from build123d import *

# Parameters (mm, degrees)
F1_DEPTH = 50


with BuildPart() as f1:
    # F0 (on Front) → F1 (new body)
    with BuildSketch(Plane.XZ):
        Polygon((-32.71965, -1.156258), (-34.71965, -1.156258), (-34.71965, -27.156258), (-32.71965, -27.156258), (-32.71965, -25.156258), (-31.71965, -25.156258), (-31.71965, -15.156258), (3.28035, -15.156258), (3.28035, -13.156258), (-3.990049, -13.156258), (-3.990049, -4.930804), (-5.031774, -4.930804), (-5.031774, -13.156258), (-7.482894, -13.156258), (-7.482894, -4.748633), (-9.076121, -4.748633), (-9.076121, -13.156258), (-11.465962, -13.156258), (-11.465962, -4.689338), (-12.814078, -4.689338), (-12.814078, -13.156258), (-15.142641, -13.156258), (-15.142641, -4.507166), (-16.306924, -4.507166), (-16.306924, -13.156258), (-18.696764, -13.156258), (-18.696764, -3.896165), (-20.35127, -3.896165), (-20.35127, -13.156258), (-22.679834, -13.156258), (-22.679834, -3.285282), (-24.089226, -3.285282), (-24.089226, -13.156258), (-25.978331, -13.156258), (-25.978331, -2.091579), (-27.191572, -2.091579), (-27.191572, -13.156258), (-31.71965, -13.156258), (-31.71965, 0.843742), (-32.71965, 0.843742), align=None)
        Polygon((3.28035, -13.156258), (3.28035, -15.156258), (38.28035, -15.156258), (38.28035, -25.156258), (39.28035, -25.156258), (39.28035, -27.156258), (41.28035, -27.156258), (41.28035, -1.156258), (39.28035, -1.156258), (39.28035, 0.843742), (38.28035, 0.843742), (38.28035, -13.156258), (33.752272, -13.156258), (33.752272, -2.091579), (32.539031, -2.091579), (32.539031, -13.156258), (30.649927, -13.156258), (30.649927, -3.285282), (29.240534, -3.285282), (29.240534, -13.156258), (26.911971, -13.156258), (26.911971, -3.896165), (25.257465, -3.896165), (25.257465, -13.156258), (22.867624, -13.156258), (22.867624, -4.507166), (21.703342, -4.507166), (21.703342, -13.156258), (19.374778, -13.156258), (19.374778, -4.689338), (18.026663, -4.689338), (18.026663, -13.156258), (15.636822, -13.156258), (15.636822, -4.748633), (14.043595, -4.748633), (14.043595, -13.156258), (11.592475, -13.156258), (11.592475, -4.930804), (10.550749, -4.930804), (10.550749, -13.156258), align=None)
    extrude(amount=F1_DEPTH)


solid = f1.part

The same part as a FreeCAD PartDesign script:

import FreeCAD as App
import Part
import Sketcher
from FreeCAD import Vector


def add_polygon(sketch, points):
    """Adds a closed chain of lines whose ends are joined by coincident constraints."""
    first, n = sketch.GeometryCount, len(points)
    for a, b in zip(points, points[1:] + points[:1]):
        sketch.addGeometry(Part.LineSegment(App.Vector(*a, 0), App.Vector(*b, 0)), False)
    for i in range(n):
        sketch.addConstraint(Sketcher.Constraint("Coincident", first + i, 2, first + (i + 1) % n, 1))

doc = App.newDocument("Part")
body = doc.addObject("PartDesign::Body", "Body")

# Sketch on XZ plane
sketch1 = body.newObject("Sketcher::SketchObject", "Sketch")
sketch1.AttachmentSupport = (doc.getObject("XZ_Plane"), [""])
sketch1.MapMode = "FlatFace"
add_polygon(sketch1, [(-32.7, -1.2), (-34.7, -1.2), (-34.7, -27.2), (-32.7, -27.2), (-32.7, -25.2), (-31.7, -25.2), (-31.7, -15.2), (38.3, -15.2), (38.3, -25.2), (39.3, -25.2), (39.3, -27.2), (41.3, -27.2), (41.3, -1.2), (39.3, -1.2), (39.3, 0.8), (38.3, 0.8), (38.3, -13.2), (33.8, -13.2), (33.8, -2.1), (32.5, -2.1), (32.5, -13.2), (30.6, -13.2), (30.6, -3.3), (29.2, -3.3), (29.2, -13.2), (26.9, -13.2), (26.9, -3.9), (25.3, -3.9), (25.3, -13.2), (22.9, -13.2), (22.9, -4.5), (21.7, -4.5), (21.7, -13.2), (19.4, -13.2), (19.4, -4.7), (18, -4.7), (18, -13.2), (15.6, -13.2), (15.6, -4.7), (14, -4.7), (14, -13.2), (11.6, -13.2), (11.6, -4.9), (10.6, -4.9), (10.6, -13.2), (-4, -13.2), (-4, -4.9), (-5, -4.9), (-5, -13.2), (-7.5, -13.2), (-7.5, -4.7), (-9.1, -4.7), (-9.1, -13.2), (-11.5, -13.2), (-11.5, -4.7), (-12.8, -4.7), (-12.8, -13.2), (-15.1, -13.2), (-15.1, -4.5), (-16.3, -4.5), (-16.3, -13.2), (-18.7, -13.2), (-18.7, -3.9), (-20.4, -3.9), (-20.4, -13.2), (-22.7, -13.2), (-22.7, -3.3), (-24.1, -3.3), (-24.1, -13.2), (-26, -13.2), (-26, -2.1), (-27.2, -2.1), (-27.2, -13.2), (-31.7, -13.2), (-31.7, 0.8), (-32.7, 0.8)])  # lines 0-75
sketch1.addConstraint(Sketcher.Constraint("Horizontal", 0))
sketch1.addConstraint(Sketcher.Constraint("Vertical", 1))
sketch1.addConstraint(Sketcher.Constraint("Horizontal", 2))
sketch1.addConstraint(Sketcher.Constraint("Vertical", 3))
sketch1.addConstraint(Sketcher.Constraint("Horizontal", 4))
sketch1.addConstraint(Sketcher.Constraint("Vertical", 5))
sketch1.addConstraint(Sketcher.Constraint("Horizontal", 6))
sketch1.addConstraint(Sketcher.Constraint("Vertical", 7))
sketch1.addConstraint(Sketcher.Constraint("Horizontal", 8))
sketch1.addConstraint(Sketcher.Constraint("Vertical", 9))
sketch1.addConstraint(Sketcher.Constraint("Horizontal", 10))
sketch1.addConstraint(Sketcher.Constraint("Vertical", 11))
sketch1.addConstraint(Sketcher.Constraint("Horizontal", 12))
sketch1.addConstraint(Sketcher.Constraint("Vertical", 13))
sketch1.addConstraint(Sketcher.Constraint("Horizontal", 14))
sketch1.addConstraint(Sketcher.Constraint("Vertical", 15))
sketch1.addConstraint(Sketcher.Constraint("Horizontal", 16))
sketch1.addConstraint(Sketcher.Constraint("Vertical", 17))
sketch1.addConstraint(Sketcher.Constraint("Horizontal", 18))
sketch1.addConstraint(Sketcher.Constraint("Vertical", 19))
sketch1.addConstraint(Sketcher.Constraint("Horizontal", 20))
sketch1.addConstraint(Sketcher.Constraint("Vertical", 21))
sketch1.addConstraint(Sketcher.Constraint("Horizontal", 22))
sketch1.addConstraint(Sketcher.Constraint("Vertical", 23))
sketch1.addConstraint(Sketcher.Constraint("Horizontal", 24))
sketch1.addConstraint(Sketcher.Constraint("Vertical", 25))
sketch1.addConstraint(Sketcher.Constraint("Horizontal", 26))
sketch1.addConstraint(Sketcher.Constraint("Vertical", 27))
sketch1.addConstraint(Sketcher.Constraint("Horizontal", 28))
sketch1.addConstraint(Sketcher.Constraint("Vertical", 29))
sketch1.addConstraint(Sketcher.Constraint("Horizontal", 30))
sketch1.addConstraint(Sketcher.Constraint("Vertical", 31))
sketch1.addConstraint(Sketcher.Constraint("Horizontal", 32))
sketch1.addConstraint(Sketcher.Constraint("Vertical", 33))
sketch1.addConstraint(Sketcher.Constraint("Horizontal", 34))
sketch1.addConstraint(Sketcher.Constraint("Vertical", 35))
sketch1.addConstraint(Sketcher.Constraint("Horizontal", 36))
sketch1.addConstraint(Sketcher.Constraint("Vertical", 37))
sketch1.addConstraint(Sketcher.Constraint("Horizontal", 38))
sketch1.addConstraint(Sketcher.Constraint("Vertical", 39))
sketch1.addConstraint(Sketcher.Constraint("Horizontal", 40))
sketch1.addConstraint(Sketcher.Constraint("Vertical", 41))
sketch1.addConstraint(Sketcher.Constraint("Horizontal", 42))
sketch1.addConstraint(Sketcher.Constraint("Vertical", 43))
sketch1.addConstraint(Sketcher.Constraint("Horizontal", 44))
sketch1.addConstraint(Sketcher.Constraint("Vertical", 45))
sketch1.addConstraint(Sketcher.Constraint("Horizontal", 46))
sketch1.addConstraint(Sketcher.Constraint("Vertical", 47))
sketch1.addConstraint(Sketcher.Constraint("Horizontal", 48))
sketch1.addConstraint(Sketcher.Constraint("Vertical", 49))
sketch1.addConstraint(Sketcher.Constraint("Horizontal", 50))
sketch1.addConstraint(Sketcher.Constraint("Vertical", 51))
sketch1.addConstraint(Sketcher.Constraint("Horizontal", 52))
sketch1.addConstraint(Sketcher.Constraint("Vertical", 53))
sketch1.addConstraint(Sketcher.Constraint("Horizontal", 54))
sketch1.addConstraint(Sketcher.Constraint("Vertical", 55))
sketch1.addConstraint(Sketcher.Constraint("Horizontal", 56))
sketch1.addConstraint(Sketcher.Constraint("Vertical", 57))
sketch1.addConstraint(Sketcher.Constraint("Horizontal", 58))
sketch1.addConstraint(Sketcher.Constraint("Vertical", 59))
sketch1.addConstraint(Sketcher.Constraint("Horizontal", 60))
sketch1.addConstraint(Sketcher.Constraint("Vertical", 61))
sketch1.addConstraint(Sketcher.Constraint("Horizontal", 62))
sketch1.addConstraint(Sketcher.Constraint("Vertical", 63))
sketch1.addConstraint(Sketcher.Constraint("Horizontal", 64))
sketch1.addConstraint(Sketcher.Constraint("Vertical", 65))
sketch1.addConstraint(Sketcher.Constraint("Horizontal", 66))
sketch1.addConstraint(Sketcher.Constraint("Vertical", 67))
sketch1.addConstraint(Sketcher.Constraint("Horizontal", 68))
sketch1.addConstraint(Sketcher.Constraint("Vertical", 69))
sketch1.addConstraint(Sketcher.Constraint("Horizontal", 70))
sketch1.addConstraint(Sketcher.Constraint("Vertical", 71))
sketch1.addConstraint(Sketcher.Constraint("Horizontal", 72))
sketch1.addConstraint(Sketcher.Constraint("Vertical", 73))
sketch1.addConstraint(Sketcher.Constraint("Horizontal", 74))
sketch1.addConstraint(Sketcher.Constraint("Vertical", 75))
sketch1.addConstraint(Sketcher.Constraint("Horizontal", 4, 2, 7, 2))
sketch1.addConstraint(Sketcher.Constraint("Horizontal", 2, 2, 9, 2))
sketch1.addConstraint(Sketcher.Constraint("Horizontal", 0, 2, 11, 2))
sketch1.addConstraint(Sketcher.Constraint("Horizontal", 16, 2, 19, 2))
sketch1.addConstraint(Sketcher.Constraint("Horizontal", 20, 2, 23, 2))
sketch1.addConstraint(Sketcher.Constraint("Horizontal", 24, 2, 27, 2))
sketch1.addConstraint(Sketcher.Constraint("Horizontal", 28, 2, 31, 2))
sketch1.addConstraint(Sketcher.Constraint("Horizontal", 32, 2, 35, 2))
sketch1.addConstraint(Sketcher.Constraint("Horizontal", 36, 2, 39, 2))
sketch1.addConstraint(Sketcher.Constraint("Horizontal", 40, 2, 43, 2))
sketch1.addConstraint(Sketcher.Constraint("Horizontal", 42, 2, 45, 2))
sketch1.addConstraint(Sketcher.Constraint("Horizontal", 44, 2, 47, 2))
sketch1.addConstraint(Sketcher.Constraint("Horizontal", 38, 2, 49, 2))
sketch1.addConstraint(Sketcher.Constraint("Horizontal", 48, 2, 51, 2))
sketch1.addConstraint(Sketcher.Constraint("Horizontal", 34, 2, 53, 2))
sketch1.addConstraint(Sketcher.Constraint("Horizontal", 52, 2, 55, 2))
sketch1.addConstraint(Sketcher.Constraint("Horizontal", 30, 2, 57, 2))
sketch1.addConstraint(Sketcher.Constraint("Horizontal", 56, 2, 59, 2))
sketch1.addConstraint(Sketcher.Constraint("Horizontal", 26, 2, 61, 2))
sketch1.addConstraint(Sketcher.Constraint("Horizontal", 60, 2, 63, 2))
sketch1.addConstraint(Sketcher.Constraint("Horizontal", 22, 2, 65, 2))
sketch1.addConstraint(Sketcher.Constraint("Horizontal", 64, 2, 67, 2))
sketch1.addConstraint(Sketcher.Constraint("Horizontal", 18, 2, 69, 2))
sketch1.addConstraint(Sketcher.Constraint("Horizontal", 68, 2, 71, 2))
sketch1.addConstraint(Sketcher.Constraint("Horizontal", 14, 2, 73, 2))
sketch1.addConstraint(Sketcher.Constraint("Vertical", 9, 2, 12, 2))
sketch1.addConstraint(Sketcher.Constraint("Vertical", 7, 2, 14, 2))
sketch1.addConstraint(Sketcher.Constraint("Vertical", 5, 2, 72, 2))
sketch1.addConstraint(Sketcher.Constraint("Vertical", 3, 2, 74, 2))
sketch1.addConstraint(Sketcher.Constraint("Equal", 4, 8))
sketch1.addConstraint(Sketcher.Constraint("Equal", 2, 10))
sketch1.addConstraint(Sketcher.Constraint("Equal", 24, 32))
sketch1.addConstraint(Sketcher.Constraint("Equal", 28, 36))
sketch1.addConstraint(Sketcher.Constraint("Equal", 42, 46))
sketch1.addConstraint(Sketcher.Constraint("Equal", 40, 48))
sketch1.addConstraint(Sketcher.Constraint("Equal", 38, 50))
sketch1.addConstraint(Sketcher.Constraint("Equal", 36, 52))
sketch1.addConstraint(Sketcher.Constraint("Equal", 34, 54))
sketch1.addConstraint(Sketcher.Constraint("Equal", 32, 56))
sketch1.addConstraint(Sketcher.Constraint("Equal", 30, 58))
sketch1.addConstraint(Sketcher.Constraint("Equal", 52, 60))
sketch1.addConstraint(Sketcher.Constraint("Equal", 26, 62))
sketch1.addConstraint(Sketcher.Constraint("Equal", 56, 64))
sketch1.addConstraint(Sketcher.Constraint("Equal", 22, 66))
sketch1.addConstraint(Sketcher.Constraint("Equal", 20, 68))
sketch1.addConstraint(Sketcher.Constraint("Equal", 18, 70))
sketch1.addConstraint(Sketcher.Constraint("Equal", 16, 72))
sketch1.addConstraint(Sketcher.Constraint("Equal", 12, 3))
sketch1.addConstraint(Sketcher.Constraint("Equal", 9, 13))
sketch1.addConstraint(Sketcher.Constraint("DistanceX", 0, 2, 0, 1, 2.0))
sketch1.addConstraint(Sketcher.Constraint("DistanceX", 4, 1, 4, 2, 1.0))
sketch1.addConstraint(Sketcher.Constraint("DistanceX", 6, 1, 6, 2, 70.0))
sketch1.addConstraint(Sketcher.Constraint("DistanceY", 1, 2, 1, 1, 26.0))
sketch1.addConstraint(Sketcher.Constraint("DistanceY", 5, 1, 5, 2, 10.0))
sketch1.addConstraint(Sketcher.Constraint("DistanceY", 15, 2, 15, 1, 14.0))
sketch1.addConstraint(Sketcher.Constraint("DistanceX", 16, 2, 16, 1, 4.528078))
sketch1.addConstraint(Sketcher.Constraint("DistanceX", 18, 2, 18, 1, 1.213241))
sketch1.addConstraint(Sketcher.Constraint("DistanceX", 28, 2, 28, 1, 2.389841))
sketch1.addConstraint(Sketcher.Constraint("DistanceX", 40, 2, 40, 1, 2.45112))
sketch1.addConstraint(Sketcher.Constraint("DistanceY", 17, 1, 17, 2, 11.064679))
sketch1.addConstraint(Sketcher.Constraint("DistanceY", 33, 1, 33, 2, 8.46692))
sketch1.addConstraint(Sketcher.Constraint("DistanceX", 20, 2, 20, 1, 1.889104))
sketch1.addConstraint(Sketcher.Constraint("DistanceX", 22, 2, 22, 1, 1.409393))
sketch1.addConstraint(Sketcher.Constraint("DistanceX", 24, 2, 24, 1, 2.328563))
sketch1.addConstraint(Sketcher.Constraint("DistanceX", 26, 2, 26, 1, 1.654506))
sketch1.addConstraint(Sketcher.Constraint("DistanceX", 30, 2, 30, 1, 1.164282))
sketch1.addConstraint(Sketcher.Constraint("DistanceX", 34, 2, 34, 1, 1.348115))
sketch1.addConstraint(Sketcher.Constraint("DistanceX", 38, 2, 38, 1, 1.593227))
sketch1.addConstraint(Sketcher.Constraint("DistanceX", 42, 2, 42, 1, 1.041726))
sketch1.addConstraint(Sketcher.Constraint("DistanceY", 21, 1, 21, 2, 9.870976))
sketch1.addConstraint(Sketcher.Constraint("DistanceY", 25, 1, 25, 2, 9.260093))
sketch1.addConstraint(Sketcher.Constraint("DistanceY", 29, 1, 29, 2, 8.649092))
sketch1.addConstraint(Sketcher.Constraint("DistanceY", 37, 1, 37, 2, 8.407625))
sketch1.addConstraint(Sketcher.Constraint("DistanceY", 41, 1, 41, 2, 8.225454))
sketch1.addConstraint(Sketcher.Constraint("DistanceX", 0, 2, -1, 1, 34.71965))
sketch1.addConstraint(Sketcher.Constraint("DistanceY", 1, 2, -1, 1, 27.156258))
pad1 = body.newObject("PartDesign::Pad", "Pad")
pad1.Profile = sketch1
pad1.Length = 50

doc.recompute()
